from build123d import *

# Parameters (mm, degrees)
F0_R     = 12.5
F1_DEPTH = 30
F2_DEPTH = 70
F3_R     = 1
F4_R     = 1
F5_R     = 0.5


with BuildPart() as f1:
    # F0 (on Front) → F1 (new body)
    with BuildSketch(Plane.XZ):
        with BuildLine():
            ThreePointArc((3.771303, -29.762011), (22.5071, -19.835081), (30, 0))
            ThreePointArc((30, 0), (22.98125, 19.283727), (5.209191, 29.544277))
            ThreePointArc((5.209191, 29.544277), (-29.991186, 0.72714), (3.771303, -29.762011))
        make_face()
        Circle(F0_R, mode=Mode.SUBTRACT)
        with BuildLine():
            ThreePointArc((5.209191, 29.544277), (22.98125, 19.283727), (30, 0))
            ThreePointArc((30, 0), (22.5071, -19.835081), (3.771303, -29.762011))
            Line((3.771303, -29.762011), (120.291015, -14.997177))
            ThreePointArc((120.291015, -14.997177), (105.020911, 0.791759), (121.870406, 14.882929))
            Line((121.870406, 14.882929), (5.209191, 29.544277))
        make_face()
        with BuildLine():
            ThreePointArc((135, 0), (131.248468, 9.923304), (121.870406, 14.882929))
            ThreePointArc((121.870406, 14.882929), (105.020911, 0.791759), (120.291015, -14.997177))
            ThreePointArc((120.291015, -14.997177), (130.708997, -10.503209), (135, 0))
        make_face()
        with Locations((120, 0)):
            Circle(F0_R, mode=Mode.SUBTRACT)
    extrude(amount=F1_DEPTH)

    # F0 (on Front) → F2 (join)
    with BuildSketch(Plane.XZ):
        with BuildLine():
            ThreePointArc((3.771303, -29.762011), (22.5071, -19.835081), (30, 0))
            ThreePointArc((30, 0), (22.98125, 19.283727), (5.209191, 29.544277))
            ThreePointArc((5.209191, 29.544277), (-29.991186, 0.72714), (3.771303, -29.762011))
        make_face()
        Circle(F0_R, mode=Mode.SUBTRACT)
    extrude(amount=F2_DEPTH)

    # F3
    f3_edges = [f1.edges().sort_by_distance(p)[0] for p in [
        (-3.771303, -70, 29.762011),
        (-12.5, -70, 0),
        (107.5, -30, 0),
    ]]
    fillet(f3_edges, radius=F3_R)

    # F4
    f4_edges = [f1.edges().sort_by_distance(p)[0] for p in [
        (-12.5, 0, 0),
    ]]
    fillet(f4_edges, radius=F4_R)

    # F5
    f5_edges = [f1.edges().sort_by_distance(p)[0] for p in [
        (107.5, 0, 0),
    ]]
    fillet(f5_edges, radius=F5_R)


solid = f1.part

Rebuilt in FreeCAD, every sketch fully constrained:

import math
import FreeCAD as App
import Part
import Sketcher
Q = App.Units.Quantity


def edges_at(feature, points):
    """Names of the edges that pass closest to the given points."""
    edges = feature.Shape.Edges
    near = lambda p: min(range(len(edges)), key=lambda i: edges[i].distToShape(Part.Vertex(*p))[0])
    return sorted({f"Edge{near(p) + 1}" for p in points})

doc = App.newDocument("Part")
body = doc.addObject("PartDesign::Body", "Body")

# Sketch on XZ plane
sketch1 = body.newObject("Sketcher::SketchObject", "Sketch")
sketch1.AttachmentSupport = (doc.getObject("XZ_Plane"), [""])
sketch1.MapMode = "FlatFace"
sketch1.addGeometry([
    Part.ArcOfCircle(Part.Circle(App.Vector(0, 0, 0), App.Vector(0, 0, 1), 30), math.radians(80), math.radians(277)),  # 0
    Part.LineSegment(App.Vector(4, -30, 0), App.Vector(120, -15, 0)),  # 1
    Part.ArcOfCircle(Part.Circle(App.Vector(120, 0, 0), App.Vector(0, 0, 1), 15), math.radians(-89), math.radians(0)),  # 2
    Part.ArcOfCircle(Part.Circle(App.Vector(120, 0, 0), App.Vector(0, 0, 1), 15), math.radians(0), math.radians(83)),  # 3
    Part.LineSegment(App.Vector(122, 15, 0), App.Vector(5, 30, 0)),  # 4
    Part.Circle(App.Vector(0, 0, 0), App.Vector(0, 0, 1), 12),  # 5
    Part.Circle(App.Vector(120, 0, 0), App.Vector(0, 0, 1), 12),  # 6
], False)
sketch1.addConstraint([
    Sketcher.Constraint("Tangent", 0, 2, 1, 1),
    Sketcher.Constraint("Coincident", 1, 2, 2, 1),
    Sketcher.Constraint("Tangent", 2, 2, 3, 1),
    Sketcher.Constraint("Tangent", 3, 2, 4, 1),
    Sketcher.Constraint("Coincident", 4, 2, 0, 1),
    Sketcher.Constraint("Coincident", 0, 3, -1, 1),
    Sketcher.Constraint("Coincident", 5, 3, -1, 1),
    Sketcher.Constraint("Coincident", 6, 3, 2, 3),
    Sketcher.Constraint("Equal", 2, 3),
    Sketcher.Constraint("Equal", 5, 6),
    Sketcher.Constraint("PointOnObject", 2, 3, -1),
    Sketcher.Constraint("PointOnObject", 2, 2, -1),
    Sketcher.Constraint("Diameter", 5, Q("25 mm")),
    Sketcher.Constraint("Radius", 0, Q("30 mm")),
    Sketcher.Constraint("Radius", 2, Q("14.999999 mm")),
    Sketcher.Constraint("DistanceX", -1, 1, 2, 3, Q("120.000001 mm")),
    Sketcher.Constraint("DistanceX", -1, 1, 4, 2, Q("5.209191 mm")),
    Sketcher.Constraint("DistanceX", 1, 2, 3, 2, Q("1.579391 mm")),
])
pad1 = body.newObject("PartDesign::Pad", "Pad")
pad1.Profile = sketch1
pad1.Length = 30

# Sketch on XZ plane
sketch2 = body.newObject("Sketcher::SketchObject", "Sketch001")
sketch2.AttachmentSupport = (doc.getObject("XZ_Plane"), [""])
sketch2.MapMode = "FlatFace"
sketch2.addGeometry([
    Part.ArcOfCircle(Part.Circle(App.Vector(0, 0, 0), App.Vector(0, 0, 1), 30), math.radians(-83), math.radians(0)),
    Part.ArcOfCircle(Part.Circle(App.Vector(0, 0, 0), App.Vector(0, 0, 1), 30), math.radians(0), math.radians(80)),
    Part.ArcOfCircle(Part.Circle(App.Vector(0, 0, 0), App.Vector(0, 0, 1), 30), math.radians(80), math.radians(277)),
    Part.Circle(App.Vector(0, 0, 0), App.Vector(0, 0, 1), 12),
], False)
sketch2.addConstraint([
    Sketcher.Constraint("Tangent", 0, 2, 1, 1),
    Sketcher.Constraint("Tangent", 1, 2, 2, 1),
    Sketcher.Constraint("Tangent", 2, 2, 0, 1),
    Sketcher.Constraint("Coincident", 0, 3, -1, 1),
    Sketcher.Constraint("Coincident", 3, 3, -1, 1),
    Sketcher.Constraint("PointOnObject", 0, 2, -1),
    Sketcher.Constraint("Diameter", 3, Q("25 mm")),
    Sketcher.Constraint("Radius", 0, Q("30.000001 mm")),
    Sketcher.Constraint("DistanceX", -1, 1, 1, 2, Q("5.209191 mm")),
    Sketcher.Constraint("DistanceY", 2, 2, -1, 1, Q("29.762011 mm")),
])
pad2 = body.newObject("PartDesign::Pad", "Pad001")
pad2.Profile = sketch2
pad2.Length = 70
doc.recompute()

fillet = body.newObject("PartDesign::Fillet", "Fillet")
fillet.Base = (pad2, edges_at(pad2, [(-29.991, -70, 0.727), (-12.5, -70, 0), (107.5, -30, 0)]))
fillet.Radius = 1
doc.recompute()

fillet2 = body.newObject("PartDesign::Fillet", "Fillet001")
fillet2.Base = (fillet, edges_at(fillet, [(-12.5, 0, 0)]))
fillet2.Radius = 1
doc.recompute()

fillet3 = body.newObject("PartDesign::Fillet", "Fillet002")
fillet3.Base = (fillet2, edges_at(fillet2, [(107.5, 0, 0)]))
fillet3.Radius = 0.5

doc.recompute()
